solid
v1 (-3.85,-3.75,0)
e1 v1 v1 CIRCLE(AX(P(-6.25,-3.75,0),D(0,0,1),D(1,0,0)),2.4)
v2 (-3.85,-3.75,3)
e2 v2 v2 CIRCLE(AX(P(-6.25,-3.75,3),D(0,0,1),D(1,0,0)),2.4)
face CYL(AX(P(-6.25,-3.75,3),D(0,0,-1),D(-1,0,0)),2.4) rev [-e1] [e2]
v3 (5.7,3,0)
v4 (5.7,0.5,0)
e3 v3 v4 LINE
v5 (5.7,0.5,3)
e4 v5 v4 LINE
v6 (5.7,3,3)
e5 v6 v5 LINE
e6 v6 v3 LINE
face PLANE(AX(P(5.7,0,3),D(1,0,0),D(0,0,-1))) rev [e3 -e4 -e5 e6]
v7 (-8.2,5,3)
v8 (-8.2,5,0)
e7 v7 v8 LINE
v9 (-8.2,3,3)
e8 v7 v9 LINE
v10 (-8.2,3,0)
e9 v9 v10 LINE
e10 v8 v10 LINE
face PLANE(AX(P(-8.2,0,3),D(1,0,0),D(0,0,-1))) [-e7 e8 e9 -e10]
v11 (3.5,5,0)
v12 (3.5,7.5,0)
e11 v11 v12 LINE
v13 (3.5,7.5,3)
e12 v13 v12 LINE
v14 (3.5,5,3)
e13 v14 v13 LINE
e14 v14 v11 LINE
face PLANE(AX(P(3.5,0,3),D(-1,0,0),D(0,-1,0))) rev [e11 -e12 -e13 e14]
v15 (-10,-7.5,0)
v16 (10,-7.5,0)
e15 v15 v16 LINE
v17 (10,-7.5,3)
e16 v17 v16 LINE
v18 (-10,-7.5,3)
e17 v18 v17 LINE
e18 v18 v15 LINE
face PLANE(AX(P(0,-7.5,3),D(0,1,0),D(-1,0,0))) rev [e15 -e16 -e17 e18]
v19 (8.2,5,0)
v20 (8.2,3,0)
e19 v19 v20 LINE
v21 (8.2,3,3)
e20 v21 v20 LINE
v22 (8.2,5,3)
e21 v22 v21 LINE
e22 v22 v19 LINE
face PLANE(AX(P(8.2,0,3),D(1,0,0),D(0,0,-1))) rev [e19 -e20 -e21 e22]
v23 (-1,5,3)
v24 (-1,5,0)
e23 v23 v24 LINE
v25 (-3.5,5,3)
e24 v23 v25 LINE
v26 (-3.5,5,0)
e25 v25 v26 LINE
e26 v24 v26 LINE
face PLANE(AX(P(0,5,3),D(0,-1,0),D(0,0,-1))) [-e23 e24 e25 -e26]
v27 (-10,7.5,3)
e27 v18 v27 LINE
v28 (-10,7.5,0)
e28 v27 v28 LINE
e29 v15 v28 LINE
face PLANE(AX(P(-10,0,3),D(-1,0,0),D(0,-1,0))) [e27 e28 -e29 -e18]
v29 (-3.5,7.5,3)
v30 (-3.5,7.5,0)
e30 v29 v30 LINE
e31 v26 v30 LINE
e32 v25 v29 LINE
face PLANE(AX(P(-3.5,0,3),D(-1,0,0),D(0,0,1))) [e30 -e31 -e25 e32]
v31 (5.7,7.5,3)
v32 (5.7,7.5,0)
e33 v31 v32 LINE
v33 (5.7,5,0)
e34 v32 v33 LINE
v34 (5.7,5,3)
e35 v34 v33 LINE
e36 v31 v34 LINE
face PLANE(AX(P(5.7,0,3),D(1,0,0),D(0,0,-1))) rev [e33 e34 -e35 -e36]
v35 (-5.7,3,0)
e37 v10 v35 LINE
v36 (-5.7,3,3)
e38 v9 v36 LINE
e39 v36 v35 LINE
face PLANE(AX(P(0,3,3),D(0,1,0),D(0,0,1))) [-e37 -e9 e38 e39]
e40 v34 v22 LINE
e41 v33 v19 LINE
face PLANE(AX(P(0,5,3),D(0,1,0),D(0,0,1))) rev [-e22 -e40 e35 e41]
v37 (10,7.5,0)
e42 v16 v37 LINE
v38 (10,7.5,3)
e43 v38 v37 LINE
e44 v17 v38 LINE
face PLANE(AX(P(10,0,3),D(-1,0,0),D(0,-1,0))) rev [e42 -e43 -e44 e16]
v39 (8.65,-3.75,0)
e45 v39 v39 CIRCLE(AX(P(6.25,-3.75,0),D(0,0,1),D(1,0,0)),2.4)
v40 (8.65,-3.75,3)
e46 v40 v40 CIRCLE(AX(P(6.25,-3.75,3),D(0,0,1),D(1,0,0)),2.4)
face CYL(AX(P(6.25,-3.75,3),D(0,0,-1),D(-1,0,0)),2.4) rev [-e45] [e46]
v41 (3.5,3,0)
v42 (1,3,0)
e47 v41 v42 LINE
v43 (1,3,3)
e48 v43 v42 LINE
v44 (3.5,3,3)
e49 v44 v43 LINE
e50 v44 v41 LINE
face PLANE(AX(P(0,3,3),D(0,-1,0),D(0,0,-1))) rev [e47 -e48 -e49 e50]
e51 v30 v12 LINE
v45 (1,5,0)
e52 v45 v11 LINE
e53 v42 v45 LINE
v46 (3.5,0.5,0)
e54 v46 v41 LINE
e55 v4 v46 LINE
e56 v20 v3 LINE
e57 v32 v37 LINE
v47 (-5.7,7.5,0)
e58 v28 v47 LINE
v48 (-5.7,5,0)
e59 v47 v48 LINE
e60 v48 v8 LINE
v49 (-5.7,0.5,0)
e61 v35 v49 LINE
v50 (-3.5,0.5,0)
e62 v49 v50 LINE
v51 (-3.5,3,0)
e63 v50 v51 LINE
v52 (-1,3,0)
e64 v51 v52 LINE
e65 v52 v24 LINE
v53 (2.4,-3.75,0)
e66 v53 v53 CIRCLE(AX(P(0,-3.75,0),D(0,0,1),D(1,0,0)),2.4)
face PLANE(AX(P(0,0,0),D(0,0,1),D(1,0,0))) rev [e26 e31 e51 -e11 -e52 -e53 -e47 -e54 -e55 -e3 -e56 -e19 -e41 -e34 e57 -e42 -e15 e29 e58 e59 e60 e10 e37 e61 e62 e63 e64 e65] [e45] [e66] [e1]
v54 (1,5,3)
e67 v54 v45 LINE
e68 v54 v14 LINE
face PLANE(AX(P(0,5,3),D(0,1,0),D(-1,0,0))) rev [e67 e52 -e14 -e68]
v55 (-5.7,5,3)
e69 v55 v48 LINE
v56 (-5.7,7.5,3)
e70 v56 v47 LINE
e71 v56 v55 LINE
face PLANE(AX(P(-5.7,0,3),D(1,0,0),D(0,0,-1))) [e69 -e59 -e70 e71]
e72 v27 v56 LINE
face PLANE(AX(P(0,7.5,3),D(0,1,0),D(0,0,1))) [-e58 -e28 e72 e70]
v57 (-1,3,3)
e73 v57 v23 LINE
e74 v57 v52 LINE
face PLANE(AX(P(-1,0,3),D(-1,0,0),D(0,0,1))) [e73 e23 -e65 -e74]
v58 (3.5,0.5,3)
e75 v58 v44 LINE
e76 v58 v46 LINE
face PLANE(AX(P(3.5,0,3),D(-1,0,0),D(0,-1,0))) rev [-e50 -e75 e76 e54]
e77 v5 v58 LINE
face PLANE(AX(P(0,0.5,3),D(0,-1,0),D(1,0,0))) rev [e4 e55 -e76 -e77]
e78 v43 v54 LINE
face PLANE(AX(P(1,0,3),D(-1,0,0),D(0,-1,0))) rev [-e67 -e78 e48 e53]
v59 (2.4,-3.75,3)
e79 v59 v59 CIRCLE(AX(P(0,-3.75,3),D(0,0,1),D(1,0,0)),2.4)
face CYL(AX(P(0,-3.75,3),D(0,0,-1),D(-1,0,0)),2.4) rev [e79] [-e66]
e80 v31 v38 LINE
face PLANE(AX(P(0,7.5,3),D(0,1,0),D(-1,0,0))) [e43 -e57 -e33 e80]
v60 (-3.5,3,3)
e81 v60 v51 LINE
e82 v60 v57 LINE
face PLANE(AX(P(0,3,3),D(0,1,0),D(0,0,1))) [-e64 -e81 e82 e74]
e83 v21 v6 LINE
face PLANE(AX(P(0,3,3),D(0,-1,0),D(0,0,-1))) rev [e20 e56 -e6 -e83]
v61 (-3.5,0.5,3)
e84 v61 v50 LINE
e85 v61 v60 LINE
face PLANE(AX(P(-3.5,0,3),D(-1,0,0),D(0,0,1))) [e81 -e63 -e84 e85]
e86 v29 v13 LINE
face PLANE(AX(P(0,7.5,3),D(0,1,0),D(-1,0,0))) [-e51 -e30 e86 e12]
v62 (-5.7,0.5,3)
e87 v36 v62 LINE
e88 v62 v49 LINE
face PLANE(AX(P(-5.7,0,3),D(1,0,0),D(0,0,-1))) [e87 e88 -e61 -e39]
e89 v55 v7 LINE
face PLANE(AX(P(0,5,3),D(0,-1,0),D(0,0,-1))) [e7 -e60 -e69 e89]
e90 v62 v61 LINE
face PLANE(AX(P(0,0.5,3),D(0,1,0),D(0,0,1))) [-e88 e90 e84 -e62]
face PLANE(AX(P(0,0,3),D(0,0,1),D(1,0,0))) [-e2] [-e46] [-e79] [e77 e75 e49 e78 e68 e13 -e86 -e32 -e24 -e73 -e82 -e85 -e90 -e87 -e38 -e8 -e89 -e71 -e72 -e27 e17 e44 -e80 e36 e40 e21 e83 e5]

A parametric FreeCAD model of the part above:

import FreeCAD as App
import Part
import Sketcher
from FreeCAD import Vector
Q = App.Units.Quantity

doc = App.newDocument("Part")
body = doc.addObject("PartDesign::Body", "Body")

# Sketch on XY plane
sketch1 = doc.addObject("Sketcher::SketchObject", "Sketch")
body.addObject(sketch1)
sketch1.AttachmentSupport = (doc.XY_Plane, [""])
sketch1.MapMode = "FlatFace"
sketch1.addGeometry([
    Part.LineSegment(Vector(-10, -7.5, 0), Vector(10, -7.5, 0)),  # 0
    Part.LineSegment(Vector(10, -7.5, 0), Vector(10, 7.5, 0)),  # 1
    Part.LineSegment(Vector(10, 7.5, 0), Vector(5.7, 7.5, 0)),  # 2
    Part.LineSegment(Vector(5.7, 7.5, 0), Vector(5.7, 5, 0)),  # 3
    Part.LineSegment(Vector(5.7, 5, 0), Vector(8.2, 5, 0)),  # 4
    Part.LineSegment(Vector(8.2, 5, 0), Vector(8.2, 3, 0)),  # 5
    Part.LineSegment(Vector(8.2, 3, 0), Vector(5.7, 3, 0)),  # 6
    Part.LineSegment(Vector(5.7, 3, 0), Vector(5.7, 0.5, 0)),  # 7
    Part.LineSegment(Vector(5.7, 0.5, 0), Vector(3.5, 0.5, 0)),  # 8
    Part.LineSegment(Vector(3.5, 0.5, 0), Vector(3.5, 3, 0)),  # 9
    Part.LineSegment(Vector(3.5, 3, 0), Vector(1, 3, 0)),  # 10
    Part.LineSegment(Vector(1, 3, 0), Vector(1, 5, 0)),  # 11
    Part.LineSegment(Vector(1, 5, 0), Vector(3.5, 5, 0)),  # 12
    Part.LineSegment(Vector(3.5, 5, 0), Vector(3.5, 7.5, 0)),  # 13
    Part.LineSegment(Vector(3.5, 7.5, 0), Vector(-3.5, 7.5, 0)),  # 14
    Part.LineSegment(Vector(-3.5, 7.5, 0), Vector(-3.5, 5, 0)),  # 15
    Part.LineSegment(Vector(-3.5, 5, 0), Vector(-1, 5, 0)),  # 16
    Part.LineSegment(Vector(-1, 5, 0), Vector(-1, 3, 0)),  # 17
    Part.LineSegment(Vector(-1, 3, 0), Vector(-3.5, 3, 0)),  # 18
    Part.LineSegment(Vector(-3.5, 3, 0), Vector(-3.5, 0.5, 0)),  # 19
    Part.LineSegment(Vector(-3.5, 0.5, 0), Vector(-5.7, 0.5, 0)),  # 20
    Part.LineSegment(Vector(-5.7, 0.5, 0), Vector(-5.7, 3, 0)),  # 21
    Part.LineSegment(Vector(-5.7, 3, 0), Vector(-8.2, 3, 0)),  # 22
    Part.LineSegment(Vector(-8.2, 3, 0), Vector(-8.2, 5, 0)),  # 23
    Part.LineSegment(Vector(-8.2, 5, 0), Vector(-5.7, 5, 0)),  # 24
    Part.LineSegment(Vector(-5.7, 5, 0), Vector(-5.7, 7.5, 0)),  # 25
    Part.LineSegment(Vector(-5.7, 7.5, 0), Vector(-10, 7.5, 0)),  # 26
    Part.LineSegment(Vector(-10, 7.5, 0), Vector(-10, -7.5, 0)),  # 27
    Part.Circle(Vector(-6.2, -3.8, 0), Vector(0, 0, 1), 2.4),  # 28
    Part.Circle(Vector(0, -3.8, 0), Vector(0, 0, 1), 2.4),  # 29
    Part.Circle(Vector(6.2, -3.8, 0), Vector(0, 0, 1), 2.4),  # 30
], False)
sketch1.addConstraint([
    Sketcher.Constraint("Coincident", 0, 2, 1, 1),
    Sketcher.Constraint("Coincident", 1, 2, 2, 1),
    Sketcher.Constraint("Coincident", 2, 2, 3, 1),
    Sketcher.Constraint("Coincident", 3, 2, 4, 1),
    Sketcher.Constraint("Coincident", 4, 2, 5, 1),
    Sketcher.Constraint("Coincident", 5, 2, 6, 1),
    Sketcher.Constraint("Coincident", 6, 2, 7, 1),
    Sketcher.Constraint("Coincident", 7, 2, 8, 1),
    Sketcher.Constraint("Coincident", 8, 2, 9, 1),
    Sketcher.Constraint("Coincident", 9, 2, 10, 1),
    Sketcher.Constraint("Coincident", 10, 2, 11, 1),
    Sketcher.Constraint("Coincident", 11, 2, 12, 1),
    Sketcher.Constraint("Coincident", 12, 2, 13, 1),
    Sketcher.Constraint("Coincident", 13, 2, 14, 1),
    Sketcher.Constraint("Coincident", 14, 2, 15, 1),
    Sketcher.Constraint("Coincident", 15, 2, 16, 1),
    Sketcher.Constraint("Coincident", 16, 2, 17, 1),
    Sketcher.Constraint("Coincident", 17, 2, 18, 1),
    Sketcher.Constraint("Coincident", 18, 2, 19, 1),
    Sketcher.Constraint("Coincident", 19, 2, 20, 1),
    Sketcher.Constraint("Coincident", 20, 2, 21, 1),
    Sketcher.Constraint("Coincident", 21, 2, 22, 1),
    Sketcher.Constraint("Coincident", 22, 2, 23, 1),
    Sketcher.Constraint("Coincident", 23, 2, 24, 1),
    Sketcher.Constraint("Coincident", 24, 2, 25, 1),
    Sketcher.Constraint("Coincident", 25, 2, 26, 1),
    Sketcher.Constraint("Coincident", 26, 2, 27, 1),
    Sketcher.Constraint("Coincident", 27, 2, 0, 1),
    Sketcher.Constraint("Horizontal", 0),
    Sketcher.Constraint("Vertical", 1),
    Sketcher.Constraint("Horizontal", 2),
    Sketcher.Constraint("Vertical", 3),
    Sketcher.Constraint("Horizontal", 4),
    Sketcher.Constraint("Vertical", 5),
    Sketcher.Constraint("Horizontal", 6),
    Sketcher.Constraint("Vertical", 7),
    Sketcher.Constraint("Horizontal", 8),
    Sketcher.Constraint("Vertical", 9),
    Sketcher.Constraint("Horizontal", 10),
    Sketcher.Constraint("Vertical", 11),
    Sketcher.Constraint("Horizontal", 12),
    Sketcher.Constraint("Vertical", 13),
    Sketcher.Constraint("Horizontal", 14),
    Sketcher.Constraint("Vertical", 15),
    Sketcher.Constraint("Horizontal", 16),
    Sketcher.Constraint("Vertical", 17),
    Sketcher.Constraint("Horizontal", 18),
    Sketcher.Constraint("Vertical", 19),
    Sketcher.Constraint("Horizontal", 20),
    Sketcher.Constraint("Vertical", 21),
    Sketcher.Constraint("Horizontal", 22),
    Sketcher.Constraint("Vertical", 23),
    Sketcher.Constraint("Horizontal", 24),
    Sketcher.Constraint("Vertical", 25),
    Sketcher.Constraint("Horizontal", 26),
    Sketcher.Constraint("Vertical", 27),
    Sketcher.Constraint("Equal", 28, 29),
    Sketcher.Constraint("Equal", 29, 30),
    Sketcher.Constraint("Symmetric", 0, 2, 26, 2, -1, 1),
    Sketcher.Constraint("Symmetric", 28, 3, 30, 3, -2),
    Sketcher.Constraint("Symmetric", 12, 2, 15, 2, -2),
    Sketcher.Constraint("Symmetric", 10, 2, 17, 2, -2),
    Sketcher.Constraint("Symmetric", 8, 2, 19, 2, -2),
    Sketcher.Constraint("Symmetric", 6, 2, 21, 2, -2),
    Sketcher.Constraint("Symmetric", 4, 2, 23, 2, -2),
    Sketcher.Constraint("Symmetric", 2, 2, 25, 2, -2),
    Sketcher.Constraint("PointOnObject", 29, 3, -2),
    Sketcher.Constraint("Horizontal", 28, 3, 29, 3),
    Sketcher.Constraint("Horizontal", 6, 2, 9, 2),
    Sketcher.Constraint("Horizontal", 4, 2, 11, 2),
    Sketcher.Constraint("Horizontal", 2, 2, 13, 2),
    Sketcher.Constraint("Vertical", 3, 2, 6, 2),
    Sketcher.Constraint("Vertical", 9, 2, 12, 2),
    Sketcher.Constraint("Equal", 6, 10),
    Sketcher.Constraint("Equal", 24, 3),
    Sketcher.Constraint("Equal", 3, 7),
    Sketcher.Constraint("Diameter", 28, Q("4.8 mm")),
    Sketcher.Constraint("DistanceX", 0, 1, 0, 2, Q("20 mm")),
    Sketcher.Constraint("DistanceX", 14, 2, 14, 1, Q("7 mm")),
    Sketcher.Constraint("DistanceY", 1, 1, 1, 2, Q("15 mm")),
    Sketcher.Constraint("DistanceY", 5, 2, 5, 1, Q("2 mm")),
    Sketcher.Constraint("DistanceX", 2, 2, 2, 1, Q("4.3 mm")),
    Sketcher.Constraint("DistanceX", 4, 1, 4, 2, Q("2.5 mm")),
    Sketcher.Constraint("DistanceX", 28, 3, 30, 3, Q("12.5 mm")),
    Sketcher.Constraint("DistanceY", 28, 3, -1, 1, Q("3.75 mm")),
])
pad1 = doc.addObject("PartDesign::Pad", "Pad")
body.addObject(pad1)
pad1.Profile = sketch1
pad1.Length = 3

doc.recompute()
